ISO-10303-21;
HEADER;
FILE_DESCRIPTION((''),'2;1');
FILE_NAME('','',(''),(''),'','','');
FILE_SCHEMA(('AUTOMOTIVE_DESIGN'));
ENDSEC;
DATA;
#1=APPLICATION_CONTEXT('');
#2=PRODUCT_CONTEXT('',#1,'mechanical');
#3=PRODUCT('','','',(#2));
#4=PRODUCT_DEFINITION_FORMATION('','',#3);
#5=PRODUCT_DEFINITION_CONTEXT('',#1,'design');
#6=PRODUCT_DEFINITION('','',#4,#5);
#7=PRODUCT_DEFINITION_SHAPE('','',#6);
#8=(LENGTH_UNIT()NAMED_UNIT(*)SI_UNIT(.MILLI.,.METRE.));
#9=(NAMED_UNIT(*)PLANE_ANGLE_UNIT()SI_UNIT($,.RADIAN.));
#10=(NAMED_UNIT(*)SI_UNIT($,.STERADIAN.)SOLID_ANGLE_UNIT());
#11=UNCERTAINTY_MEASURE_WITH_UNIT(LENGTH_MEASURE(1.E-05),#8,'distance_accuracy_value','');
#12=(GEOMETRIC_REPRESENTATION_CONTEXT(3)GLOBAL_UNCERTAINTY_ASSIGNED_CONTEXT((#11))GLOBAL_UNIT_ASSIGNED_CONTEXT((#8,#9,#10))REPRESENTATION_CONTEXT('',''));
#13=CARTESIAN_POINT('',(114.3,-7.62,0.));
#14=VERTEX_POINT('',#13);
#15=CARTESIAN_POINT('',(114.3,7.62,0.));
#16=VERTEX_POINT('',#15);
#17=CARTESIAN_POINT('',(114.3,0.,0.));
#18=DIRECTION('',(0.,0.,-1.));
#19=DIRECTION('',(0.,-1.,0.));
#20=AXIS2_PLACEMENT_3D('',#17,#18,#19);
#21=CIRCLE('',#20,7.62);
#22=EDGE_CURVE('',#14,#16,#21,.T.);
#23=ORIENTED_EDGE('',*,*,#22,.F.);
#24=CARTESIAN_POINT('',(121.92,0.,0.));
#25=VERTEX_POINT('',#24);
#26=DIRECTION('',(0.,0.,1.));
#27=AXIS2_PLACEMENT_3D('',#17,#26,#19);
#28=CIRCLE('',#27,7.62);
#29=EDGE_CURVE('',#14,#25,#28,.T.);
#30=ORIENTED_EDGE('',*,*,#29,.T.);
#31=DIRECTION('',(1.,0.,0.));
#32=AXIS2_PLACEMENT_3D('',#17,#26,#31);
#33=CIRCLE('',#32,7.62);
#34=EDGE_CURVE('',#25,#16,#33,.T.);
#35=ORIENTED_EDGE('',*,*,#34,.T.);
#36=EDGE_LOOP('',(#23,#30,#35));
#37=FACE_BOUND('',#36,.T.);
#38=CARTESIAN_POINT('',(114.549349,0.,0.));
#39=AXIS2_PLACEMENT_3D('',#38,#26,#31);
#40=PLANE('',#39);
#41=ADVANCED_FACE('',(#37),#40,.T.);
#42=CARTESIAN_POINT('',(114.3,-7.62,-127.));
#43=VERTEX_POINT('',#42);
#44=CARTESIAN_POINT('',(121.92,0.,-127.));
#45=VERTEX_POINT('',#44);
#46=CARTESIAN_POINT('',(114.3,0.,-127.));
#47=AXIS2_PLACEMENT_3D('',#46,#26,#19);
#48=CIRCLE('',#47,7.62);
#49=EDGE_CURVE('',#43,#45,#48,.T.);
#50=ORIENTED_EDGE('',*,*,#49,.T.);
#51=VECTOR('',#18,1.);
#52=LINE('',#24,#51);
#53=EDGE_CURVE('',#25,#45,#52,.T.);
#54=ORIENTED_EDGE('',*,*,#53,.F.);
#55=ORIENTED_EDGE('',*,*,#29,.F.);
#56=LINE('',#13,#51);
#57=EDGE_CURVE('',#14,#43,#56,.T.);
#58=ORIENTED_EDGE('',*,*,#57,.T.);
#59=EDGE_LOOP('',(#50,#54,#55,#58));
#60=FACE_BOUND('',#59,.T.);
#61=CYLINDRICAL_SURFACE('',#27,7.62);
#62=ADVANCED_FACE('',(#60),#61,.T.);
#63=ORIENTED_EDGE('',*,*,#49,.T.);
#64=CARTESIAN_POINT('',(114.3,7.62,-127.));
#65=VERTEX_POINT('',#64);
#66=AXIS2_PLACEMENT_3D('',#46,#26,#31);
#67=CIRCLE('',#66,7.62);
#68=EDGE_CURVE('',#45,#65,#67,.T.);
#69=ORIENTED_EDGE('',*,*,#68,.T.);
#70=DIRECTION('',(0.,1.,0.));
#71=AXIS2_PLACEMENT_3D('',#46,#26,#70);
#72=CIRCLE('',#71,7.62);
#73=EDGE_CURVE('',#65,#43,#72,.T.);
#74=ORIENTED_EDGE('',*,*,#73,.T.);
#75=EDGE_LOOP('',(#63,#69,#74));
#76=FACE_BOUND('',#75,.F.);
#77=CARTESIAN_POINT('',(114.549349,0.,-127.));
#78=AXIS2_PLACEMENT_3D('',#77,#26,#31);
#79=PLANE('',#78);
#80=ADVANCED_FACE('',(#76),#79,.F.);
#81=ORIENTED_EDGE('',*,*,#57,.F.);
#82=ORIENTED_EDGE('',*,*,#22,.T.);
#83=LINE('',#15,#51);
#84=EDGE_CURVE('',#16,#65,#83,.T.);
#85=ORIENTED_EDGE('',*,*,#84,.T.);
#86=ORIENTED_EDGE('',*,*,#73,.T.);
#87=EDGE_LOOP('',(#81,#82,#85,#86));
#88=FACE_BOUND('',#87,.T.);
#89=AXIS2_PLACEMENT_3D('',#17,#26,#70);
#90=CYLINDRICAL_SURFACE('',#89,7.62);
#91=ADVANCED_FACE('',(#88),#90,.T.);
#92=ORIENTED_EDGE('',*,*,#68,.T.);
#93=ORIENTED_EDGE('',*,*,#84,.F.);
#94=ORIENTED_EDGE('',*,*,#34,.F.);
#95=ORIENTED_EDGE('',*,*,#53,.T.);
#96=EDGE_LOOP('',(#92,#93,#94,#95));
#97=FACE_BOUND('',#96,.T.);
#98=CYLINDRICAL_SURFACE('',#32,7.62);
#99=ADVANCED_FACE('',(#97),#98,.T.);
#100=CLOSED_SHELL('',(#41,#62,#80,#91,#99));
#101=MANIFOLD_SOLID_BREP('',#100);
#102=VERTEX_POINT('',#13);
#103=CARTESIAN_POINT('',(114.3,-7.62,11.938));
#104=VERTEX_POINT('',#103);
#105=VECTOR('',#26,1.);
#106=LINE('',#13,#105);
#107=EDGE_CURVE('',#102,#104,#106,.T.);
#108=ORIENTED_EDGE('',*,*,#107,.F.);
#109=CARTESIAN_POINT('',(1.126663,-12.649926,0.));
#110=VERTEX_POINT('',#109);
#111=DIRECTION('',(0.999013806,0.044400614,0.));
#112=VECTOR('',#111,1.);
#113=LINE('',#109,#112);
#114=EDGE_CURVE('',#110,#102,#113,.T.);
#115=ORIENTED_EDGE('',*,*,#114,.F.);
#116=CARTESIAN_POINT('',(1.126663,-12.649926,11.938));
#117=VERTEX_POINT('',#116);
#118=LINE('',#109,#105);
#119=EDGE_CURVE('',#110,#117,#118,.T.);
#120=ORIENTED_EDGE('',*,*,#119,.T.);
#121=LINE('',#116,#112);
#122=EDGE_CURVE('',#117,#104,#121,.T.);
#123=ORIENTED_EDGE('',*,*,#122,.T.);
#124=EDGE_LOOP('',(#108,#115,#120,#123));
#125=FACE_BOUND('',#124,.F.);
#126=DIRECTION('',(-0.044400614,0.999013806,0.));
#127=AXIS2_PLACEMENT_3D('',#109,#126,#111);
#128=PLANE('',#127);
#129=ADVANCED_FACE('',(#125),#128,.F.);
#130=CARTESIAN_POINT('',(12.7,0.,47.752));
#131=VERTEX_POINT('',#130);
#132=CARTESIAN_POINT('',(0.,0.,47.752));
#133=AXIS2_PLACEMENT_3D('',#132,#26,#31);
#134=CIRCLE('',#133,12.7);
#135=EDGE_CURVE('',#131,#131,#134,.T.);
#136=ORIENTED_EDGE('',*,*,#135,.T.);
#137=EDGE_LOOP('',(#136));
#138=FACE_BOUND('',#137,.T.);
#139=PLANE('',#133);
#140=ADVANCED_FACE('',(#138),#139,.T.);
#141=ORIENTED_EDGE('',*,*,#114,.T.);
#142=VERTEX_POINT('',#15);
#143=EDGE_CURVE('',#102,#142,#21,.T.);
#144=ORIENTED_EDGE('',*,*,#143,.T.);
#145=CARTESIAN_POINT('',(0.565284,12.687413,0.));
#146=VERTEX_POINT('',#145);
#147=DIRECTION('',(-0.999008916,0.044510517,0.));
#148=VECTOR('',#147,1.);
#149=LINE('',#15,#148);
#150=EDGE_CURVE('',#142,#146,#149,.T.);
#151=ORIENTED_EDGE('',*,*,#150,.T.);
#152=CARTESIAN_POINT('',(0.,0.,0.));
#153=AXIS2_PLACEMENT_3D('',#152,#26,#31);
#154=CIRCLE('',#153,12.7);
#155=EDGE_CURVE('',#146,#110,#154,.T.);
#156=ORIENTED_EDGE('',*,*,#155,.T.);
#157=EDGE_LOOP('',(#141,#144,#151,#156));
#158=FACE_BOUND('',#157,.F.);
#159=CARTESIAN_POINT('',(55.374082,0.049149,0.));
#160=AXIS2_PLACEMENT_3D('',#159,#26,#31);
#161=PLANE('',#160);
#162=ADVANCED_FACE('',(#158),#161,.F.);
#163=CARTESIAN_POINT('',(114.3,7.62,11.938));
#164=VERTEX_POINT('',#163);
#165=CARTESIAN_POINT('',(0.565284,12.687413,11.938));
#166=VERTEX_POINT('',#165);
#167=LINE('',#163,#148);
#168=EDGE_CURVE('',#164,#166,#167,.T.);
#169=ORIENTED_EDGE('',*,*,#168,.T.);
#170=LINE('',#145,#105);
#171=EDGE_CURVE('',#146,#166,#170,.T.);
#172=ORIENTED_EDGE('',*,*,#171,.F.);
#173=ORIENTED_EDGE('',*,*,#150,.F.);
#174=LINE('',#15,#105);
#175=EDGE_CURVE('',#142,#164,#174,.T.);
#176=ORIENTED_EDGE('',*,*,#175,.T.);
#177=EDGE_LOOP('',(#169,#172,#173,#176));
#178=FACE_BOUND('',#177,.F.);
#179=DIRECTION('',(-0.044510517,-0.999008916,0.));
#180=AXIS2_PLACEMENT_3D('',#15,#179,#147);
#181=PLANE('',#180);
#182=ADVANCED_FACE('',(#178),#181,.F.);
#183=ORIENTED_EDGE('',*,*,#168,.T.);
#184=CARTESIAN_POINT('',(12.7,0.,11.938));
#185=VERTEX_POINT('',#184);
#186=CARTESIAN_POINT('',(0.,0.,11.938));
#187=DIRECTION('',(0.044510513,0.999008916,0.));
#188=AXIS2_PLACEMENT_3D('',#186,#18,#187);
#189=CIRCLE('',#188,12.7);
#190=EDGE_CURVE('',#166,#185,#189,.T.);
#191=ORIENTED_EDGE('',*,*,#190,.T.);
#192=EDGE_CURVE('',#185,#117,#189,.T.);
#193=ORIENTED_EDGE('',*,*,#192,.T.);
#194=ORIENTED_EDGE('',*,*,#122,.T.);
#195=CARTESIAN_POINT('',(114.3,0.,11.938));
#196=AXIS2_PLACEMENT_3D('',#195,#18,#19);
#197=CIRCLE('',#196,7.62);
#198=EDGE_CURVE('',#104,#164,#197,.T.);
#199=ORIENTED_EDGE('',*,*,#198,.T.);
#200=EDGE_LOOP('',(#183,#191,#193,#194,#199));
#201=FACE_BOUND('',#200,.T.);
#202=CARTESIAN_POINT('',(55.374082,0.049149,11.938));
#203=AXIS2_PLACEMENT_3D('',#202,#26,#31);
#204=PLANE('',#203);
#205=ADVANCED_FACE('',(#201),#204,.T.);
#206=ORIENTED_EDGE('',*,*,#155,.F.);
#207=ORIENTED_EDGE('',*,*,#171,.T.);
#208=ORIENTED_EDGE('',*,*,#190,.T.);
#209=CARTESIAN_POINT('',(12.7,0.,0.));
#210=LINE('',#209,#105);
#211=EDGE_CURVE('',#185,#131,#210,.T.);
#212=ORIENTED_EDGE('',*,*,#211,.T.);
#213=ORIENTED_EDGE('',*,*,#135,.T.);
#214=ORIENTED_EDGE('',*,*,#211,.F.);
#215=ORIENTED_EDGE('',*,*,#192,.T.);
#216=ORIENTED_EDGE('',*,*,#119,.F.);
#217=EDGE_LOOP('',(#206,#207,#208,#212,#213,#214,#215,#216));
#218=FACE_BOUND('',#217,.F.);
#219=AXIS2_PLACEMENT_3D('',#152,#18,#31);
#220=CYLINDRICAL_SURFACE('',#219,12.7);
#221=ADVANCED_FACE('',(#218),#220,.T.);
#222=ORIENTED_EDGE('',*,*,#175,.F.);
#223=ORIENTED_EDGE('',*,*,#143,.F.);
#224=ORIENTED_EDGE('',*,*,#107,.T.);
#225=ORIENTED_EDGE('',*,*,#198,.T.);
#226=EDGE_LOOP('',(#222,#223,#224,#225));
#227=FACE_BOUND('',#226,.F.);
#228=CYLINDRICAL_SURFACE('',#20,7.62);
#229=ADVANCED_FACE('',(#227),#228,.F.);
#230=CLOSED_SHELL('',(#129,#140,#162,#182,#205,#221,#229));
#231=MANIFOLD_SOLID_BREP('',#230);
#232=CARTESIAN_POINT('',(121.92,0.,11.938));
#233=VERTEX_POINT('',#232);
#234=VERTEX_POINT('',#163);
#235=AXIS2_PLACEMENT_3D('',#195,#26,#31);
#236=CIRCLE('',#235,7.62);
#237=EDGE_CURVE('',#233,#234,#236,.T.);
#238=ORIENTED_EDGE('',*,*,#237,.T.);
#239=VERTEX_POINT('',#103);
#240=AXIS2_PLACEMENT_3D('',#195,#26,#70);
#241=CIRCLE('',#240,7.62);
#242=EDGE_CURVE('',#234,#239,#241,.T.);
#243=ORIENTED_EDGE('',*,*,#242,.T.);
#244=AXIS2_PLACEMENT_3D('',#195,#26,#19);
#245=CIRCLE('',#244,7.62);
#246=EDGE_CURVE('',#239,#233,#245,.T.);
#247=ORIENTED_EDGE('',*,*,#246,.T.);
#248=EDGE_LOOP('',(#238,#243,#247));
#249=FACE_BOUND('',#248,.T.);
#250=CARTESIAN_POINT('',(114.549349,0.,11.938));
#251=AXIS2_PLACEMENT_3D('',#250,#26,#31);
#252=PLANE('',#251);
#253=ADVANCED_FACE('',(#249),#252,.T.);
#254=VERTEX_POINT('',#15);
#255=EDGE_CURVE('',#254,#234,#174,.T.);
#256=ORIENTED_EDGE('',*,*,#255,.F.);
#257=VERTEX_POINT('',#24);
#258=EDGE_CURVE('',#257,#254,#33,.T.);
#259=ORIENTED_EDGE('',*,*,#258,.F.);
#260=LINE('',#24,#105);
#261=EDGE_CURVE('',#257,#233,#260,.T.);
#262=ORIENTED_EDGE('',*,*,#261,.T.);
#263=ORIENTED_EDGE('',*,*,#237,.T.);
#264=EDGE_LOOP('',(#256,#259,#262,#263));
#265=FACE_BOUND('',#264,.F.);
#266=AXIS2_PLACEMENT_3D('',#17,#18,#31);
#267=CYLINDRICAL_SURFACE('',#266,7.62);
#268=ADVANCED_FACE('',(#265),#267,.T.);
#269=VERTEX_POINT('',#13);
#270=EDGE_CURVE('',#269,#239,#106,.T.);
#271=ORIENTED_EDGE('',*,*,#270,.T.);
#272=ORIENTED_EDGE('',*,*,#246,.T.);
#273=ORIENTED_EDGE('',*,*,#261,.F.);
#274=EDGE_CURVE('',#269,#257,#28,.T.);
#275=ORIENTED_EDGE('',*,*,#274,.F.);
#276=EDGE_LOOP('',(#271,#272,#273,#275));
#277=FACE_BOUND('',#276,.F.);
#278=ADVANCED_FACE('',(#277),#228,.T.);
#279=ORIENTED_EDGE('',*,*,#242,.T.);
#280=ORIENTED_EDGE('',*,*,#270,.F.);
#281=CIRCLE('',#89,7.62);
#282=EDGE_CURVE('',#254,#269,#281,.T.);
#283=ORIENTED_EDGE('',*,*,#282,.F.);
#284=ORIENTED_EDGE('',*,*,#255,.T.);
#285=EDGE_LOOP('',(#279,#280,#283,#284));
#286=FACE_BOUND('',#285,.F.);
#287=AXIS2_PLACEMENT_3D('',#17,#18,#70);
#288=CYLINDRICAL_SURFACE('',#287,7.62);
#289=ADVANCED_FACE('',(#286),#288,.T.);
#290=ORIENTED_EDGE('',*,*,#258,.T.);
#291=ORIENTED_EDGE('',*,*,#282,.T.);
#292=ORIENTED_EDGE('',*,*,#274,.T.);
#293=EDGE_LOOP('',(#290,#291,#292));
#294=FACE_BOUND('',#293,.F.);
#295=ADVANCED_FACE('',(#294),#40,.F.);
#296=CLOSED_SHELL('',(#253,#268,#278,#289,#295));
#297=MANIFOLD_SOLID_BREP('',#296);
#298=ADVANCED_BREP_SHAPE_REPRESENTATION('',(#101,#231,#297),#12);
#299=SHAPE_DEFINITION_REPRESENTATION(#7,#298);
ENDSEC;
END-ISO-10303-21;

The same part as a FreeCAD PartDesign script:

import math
import FreeCAD as App
import Part
import Sketcher
from FreeCAD import Vector
Q = App.Units.Quantity

doc = App.newDocument("Part")
body = doc.addObject("PartDesign::Body", "Body")
body.AllowCompound = True

sketch1 = doc.addObject("Sketcher::SketchObject", "Sketch")
body.addObject(sketch1)
sketch1.AttachmentSupport = (doc.XY_Plane, [""])
sketch1.MapMode = "FlatFace"
sketch1.addGeometry(Part.Circle(Vector(0, 0, 0), Vector(0, 0, 1), 13), False)
sketch1.addConstraint(Sketcher.Constraint("Coincident", 0, 3, -1, 1))
sketch1.addConstraint(Sketcher.Constraint("Diameter", 0, Q("1 in")))
pad1 = doc.addObject("PartDesign::Pad", "Pad")
body.addObject(pad1)
pad1.Profile = sketch1
pad1.Length = Q("1.88 in")

sketch2 = doc.addObject("Sketcher::SketchObject", "Sketch001")
body.addObject(sketch2)
sketch2.AttachmentSupport = (doc.XY_Plane, [""])
sketch2.MapMode = "FlatFace"
sketch2.addGeometry(Part.ArcOfCircle(Part.Circle(Vector(0, 0, 0), Vector(0, 0, 1), 13), math.radians(-85), math.radians(87)), False)
sketch2.addGeometry(Part.LineSegment(Vector(1, -13, 0), Vector(114, -8, 0)), False)
sketch2.addGeometry(Part.ArcOfCircle(Part.Circle(Vector(114, 0, 0), Vector(0, 0, 1), 8), math.radians(90), math.radians(270)), False)
sketch2.addGeometry(Part.LineSegment(Vector(114, 8, 0), Vector(1, 13, 0)), False)
sketch2.addConstraint(Sketcher.Constraint("Coincident", 0, 1, 1, 1))
sketch2.addConstraint(Sketcher.Constraint("Coincident", 1, 2, 2, 2))
sketch2.addConstraint(Sketcher.Constraint("Coincident", 2, 1, 3, 1))
sketch2.addConstraint(Sketcher.Constraint("Tangent", 3, 2, 0, 2))
sketch2.addConstraint(Sketcher.Constraint("Coincident", 0, 3, -1, 1))
sketch2.addConstraint(Sketcher.Constraint("Symmetric", 1, 2, 2, 1, -1))
sketch2.addConstraint(Sketcher.Constraint("Vertical", 2, 3, 1, 2))
sketch2.addConstraint(Sketcher.Constraint("Radius", 0, Q("0.5 in")))
sketch2.addConstraint(Sketcher.Constraint("Radius", 2, Q("0.3 in")))
sketch2.addConstraint(Sketcher.Constraint("DistanceX", -1, 1, 2, 3, Q("4.5 in")))
sketch2.addConstraint(Sketcher.Constraint("DistanceX", 3, 2, 0, 1, Q("0.56138 mm")))
pad2 = doc.addObject("PartDesign::Pad", "Pad001")
body.addObject(pad2)
pad2.Profile = sketch2
pad2.Length = Q("0.47 in")

sketch3 = doc.addObject("Sketcher::SketchObject", "Sketch002")
body.addObject(sketch3)
sketch3.AttachmentSupport = (doc.XY_Plane, [""])
sketch3.MapMode = "FlatFace"
sketch3.addGeometry(Part.ArcOfCircle(Part.Circle(Vector(114, 0, 0), Vector(0, 0, 1), 8), math.radians(0), math.radians(90)), False)
sketch3.addGeometry(Part.ArcOfCircle(Part.Circle(Vector(114, 0, 0), Vector(0, 0, 1), 8), math.radians(90), math.radians(270)), False)
sketch3.addGeometry(Part.ArcOfCircle(Part.Circle(Vector(114, 0, 0), Vector(0, 0, 1), 8), math.radians(-90), math.radians(0)), False)
sketch3.addConstraint(Sketcher.Constraint("Tangent", 0, 2, 1, 1))
sketch3.addConstraint(Sketcher.Constraint("Tangent", 1, 2, 2, 1))
sketch3.addConstraint(Sketcher.Constraint("Tangent", 2, 2, 0, 1))
sketch3.addConstraint(Sketcher.Constraint("Symmetric", 0, 2, 1, 2, -1))
sketch3.addConstraint(Sketcher.Constraint("PointOnObject", 2, 2, -1))
sketch3.addConstraint(Sketcher.Constraint("Vertical", 2, 3, 0, 2))
sketch3.addConstraint(Sketcher.Constraint("Radius", 0, Q("0.3 in")))
sketch3.addConstraint(Sketcher.Constraint("DistanceX", -1, 1, 0, 3, Q("4.5 in")))
pad3 = doc.addObject("PartDesign::Pad", "Pad002")
body.addObject(pad3)
pad3.Profile = sketch3
pad3.Length = Q("5 in")
pad3.Reversed = True

sketch4 = doc.addObject("Sketcher::SketchObject", "Sketch003")
body.addObject(sketch4)
sketch4.AttachmentSupport = (doc.XY_Plane, [""])
sketch4.MapMode = "FlatFace"
sketch4.addGeometry(Part.ArcOfCircle(Part.Circle(Vector(114, 0, 0), Vector(0, 0, 1), 8), math.radians(0), math.radians(90)), False)
sketch4.addGeometry(Part.ArcOfCircle(Part.Circle(Vector(114, 0, 0), Vector(0, 0, 1), 8), math.radians(90), math.radians(270)), False)
sketch4.addGeometry(Part.ArcOfCircle(Part.Circle(Vector(114, 0, 0), Vector(0, 0, 1), 8), math.radians(-90), math.radians(0)), False)
sketch4.addConstraint(Sketcher.Constraint("Tangent", 0, 2, 1, 1))
sketch4.addConstraint(Sketcher.Constraint("Tangent", 1, 2, 2, 1))
sketch4.addConstraint(Sketcher.Constraint("Tangent", 2, 2, 0, 1))
sketch4.addConstraint(Sketcher.Constraint("Symmetric", 0, 2, 1, 2, -1))
sketch4.addConstraint(Sketcher.Constraint("PointOnObject", 2, 2, -1))
sketch4.addConstraint(Sketcher.Constraint("Vertical", 2, 3, 0, 2))
sketch4.addConstraint(Sketcher.Constraint("Radius", 0, Q("0.3 in")))
sketch4.addConstraint(Sketcher.Constraint("DistanceX", -1, 1, 0, 3, Q("4.5 in")))
pocket1 = doc.addObject("PartDesign::Pocket", "Pocket")
body.addObject(pocket1)
pocket1.Profile = sketch4
pocket1.Length = Q("0.47 in")
pocket1.Reversed = True
body2 = doc.addObject("PartDesign::Body", "Body001")

sketch5 = doc.addObject("Sketcher::SketchObject", "Sketch004")
body2.addObject(sketch5)
sketch5.AttachmentSupport = (doc.getObject("XY_Plane001"), [""])
sketch5.MapMode = "FlatFace"
sketch5.addGeometry(Part.ArcOfCircle(Part.Circle(Vector(114, 0, 0), Vector(0, 0, 1), 8), math.radians(0), math.radians(90)), False)
sketch5.addGeometry(Part.ArcOfCircle(Part.Circle(Vector(114, 0, 0), Vector(0, 0, 1), 8), math.radians(90), math.radians(270)), False)
sketch5.addGeometry(Part.ArcOfCircle(Part.Circle(Vector(114, 0, 0), Vector(0, 0, 1), 8), math.radians(-90), math.radians(0)), False)
sketch5.addConstraint(Sketcher.Constraint("Tangent", 0, 2, 1, 1))
sketch5.addConstraint(Sketcher.Constraint("Tangent", 1, 2, 2, 1))
sketch5.addConstraint(Sketcher.Constraint("Tangent", 2, 2, 0, 1))
sketch5.addConstraint(Sketcher.Constraint("Symmetric", 0, 2, 1, 2, -1))
sketch5.addConstraint(Sketcher.Constraint("PointOnObject", 2, 2, -1))
sketch5.addConstraint(Sketcher.Constraint("Vertical", 2, 3, 0, 2))
sketch5.addConstraint(Sketcher.Constraint("Radius", 0, Q("0.3 in")))
sketch5.addConstraint(Sketcher.Constraint("DistanceX", -1, 1, 0, 3, Q("4.5 in")))
pad4 = doc.addObject("PartDesign::Pad", "Pad003")
body2.addObject(pad4)
pad4.Profile = sketch5
pad4.Length = Q("0.47 in")

doc.recompute()
